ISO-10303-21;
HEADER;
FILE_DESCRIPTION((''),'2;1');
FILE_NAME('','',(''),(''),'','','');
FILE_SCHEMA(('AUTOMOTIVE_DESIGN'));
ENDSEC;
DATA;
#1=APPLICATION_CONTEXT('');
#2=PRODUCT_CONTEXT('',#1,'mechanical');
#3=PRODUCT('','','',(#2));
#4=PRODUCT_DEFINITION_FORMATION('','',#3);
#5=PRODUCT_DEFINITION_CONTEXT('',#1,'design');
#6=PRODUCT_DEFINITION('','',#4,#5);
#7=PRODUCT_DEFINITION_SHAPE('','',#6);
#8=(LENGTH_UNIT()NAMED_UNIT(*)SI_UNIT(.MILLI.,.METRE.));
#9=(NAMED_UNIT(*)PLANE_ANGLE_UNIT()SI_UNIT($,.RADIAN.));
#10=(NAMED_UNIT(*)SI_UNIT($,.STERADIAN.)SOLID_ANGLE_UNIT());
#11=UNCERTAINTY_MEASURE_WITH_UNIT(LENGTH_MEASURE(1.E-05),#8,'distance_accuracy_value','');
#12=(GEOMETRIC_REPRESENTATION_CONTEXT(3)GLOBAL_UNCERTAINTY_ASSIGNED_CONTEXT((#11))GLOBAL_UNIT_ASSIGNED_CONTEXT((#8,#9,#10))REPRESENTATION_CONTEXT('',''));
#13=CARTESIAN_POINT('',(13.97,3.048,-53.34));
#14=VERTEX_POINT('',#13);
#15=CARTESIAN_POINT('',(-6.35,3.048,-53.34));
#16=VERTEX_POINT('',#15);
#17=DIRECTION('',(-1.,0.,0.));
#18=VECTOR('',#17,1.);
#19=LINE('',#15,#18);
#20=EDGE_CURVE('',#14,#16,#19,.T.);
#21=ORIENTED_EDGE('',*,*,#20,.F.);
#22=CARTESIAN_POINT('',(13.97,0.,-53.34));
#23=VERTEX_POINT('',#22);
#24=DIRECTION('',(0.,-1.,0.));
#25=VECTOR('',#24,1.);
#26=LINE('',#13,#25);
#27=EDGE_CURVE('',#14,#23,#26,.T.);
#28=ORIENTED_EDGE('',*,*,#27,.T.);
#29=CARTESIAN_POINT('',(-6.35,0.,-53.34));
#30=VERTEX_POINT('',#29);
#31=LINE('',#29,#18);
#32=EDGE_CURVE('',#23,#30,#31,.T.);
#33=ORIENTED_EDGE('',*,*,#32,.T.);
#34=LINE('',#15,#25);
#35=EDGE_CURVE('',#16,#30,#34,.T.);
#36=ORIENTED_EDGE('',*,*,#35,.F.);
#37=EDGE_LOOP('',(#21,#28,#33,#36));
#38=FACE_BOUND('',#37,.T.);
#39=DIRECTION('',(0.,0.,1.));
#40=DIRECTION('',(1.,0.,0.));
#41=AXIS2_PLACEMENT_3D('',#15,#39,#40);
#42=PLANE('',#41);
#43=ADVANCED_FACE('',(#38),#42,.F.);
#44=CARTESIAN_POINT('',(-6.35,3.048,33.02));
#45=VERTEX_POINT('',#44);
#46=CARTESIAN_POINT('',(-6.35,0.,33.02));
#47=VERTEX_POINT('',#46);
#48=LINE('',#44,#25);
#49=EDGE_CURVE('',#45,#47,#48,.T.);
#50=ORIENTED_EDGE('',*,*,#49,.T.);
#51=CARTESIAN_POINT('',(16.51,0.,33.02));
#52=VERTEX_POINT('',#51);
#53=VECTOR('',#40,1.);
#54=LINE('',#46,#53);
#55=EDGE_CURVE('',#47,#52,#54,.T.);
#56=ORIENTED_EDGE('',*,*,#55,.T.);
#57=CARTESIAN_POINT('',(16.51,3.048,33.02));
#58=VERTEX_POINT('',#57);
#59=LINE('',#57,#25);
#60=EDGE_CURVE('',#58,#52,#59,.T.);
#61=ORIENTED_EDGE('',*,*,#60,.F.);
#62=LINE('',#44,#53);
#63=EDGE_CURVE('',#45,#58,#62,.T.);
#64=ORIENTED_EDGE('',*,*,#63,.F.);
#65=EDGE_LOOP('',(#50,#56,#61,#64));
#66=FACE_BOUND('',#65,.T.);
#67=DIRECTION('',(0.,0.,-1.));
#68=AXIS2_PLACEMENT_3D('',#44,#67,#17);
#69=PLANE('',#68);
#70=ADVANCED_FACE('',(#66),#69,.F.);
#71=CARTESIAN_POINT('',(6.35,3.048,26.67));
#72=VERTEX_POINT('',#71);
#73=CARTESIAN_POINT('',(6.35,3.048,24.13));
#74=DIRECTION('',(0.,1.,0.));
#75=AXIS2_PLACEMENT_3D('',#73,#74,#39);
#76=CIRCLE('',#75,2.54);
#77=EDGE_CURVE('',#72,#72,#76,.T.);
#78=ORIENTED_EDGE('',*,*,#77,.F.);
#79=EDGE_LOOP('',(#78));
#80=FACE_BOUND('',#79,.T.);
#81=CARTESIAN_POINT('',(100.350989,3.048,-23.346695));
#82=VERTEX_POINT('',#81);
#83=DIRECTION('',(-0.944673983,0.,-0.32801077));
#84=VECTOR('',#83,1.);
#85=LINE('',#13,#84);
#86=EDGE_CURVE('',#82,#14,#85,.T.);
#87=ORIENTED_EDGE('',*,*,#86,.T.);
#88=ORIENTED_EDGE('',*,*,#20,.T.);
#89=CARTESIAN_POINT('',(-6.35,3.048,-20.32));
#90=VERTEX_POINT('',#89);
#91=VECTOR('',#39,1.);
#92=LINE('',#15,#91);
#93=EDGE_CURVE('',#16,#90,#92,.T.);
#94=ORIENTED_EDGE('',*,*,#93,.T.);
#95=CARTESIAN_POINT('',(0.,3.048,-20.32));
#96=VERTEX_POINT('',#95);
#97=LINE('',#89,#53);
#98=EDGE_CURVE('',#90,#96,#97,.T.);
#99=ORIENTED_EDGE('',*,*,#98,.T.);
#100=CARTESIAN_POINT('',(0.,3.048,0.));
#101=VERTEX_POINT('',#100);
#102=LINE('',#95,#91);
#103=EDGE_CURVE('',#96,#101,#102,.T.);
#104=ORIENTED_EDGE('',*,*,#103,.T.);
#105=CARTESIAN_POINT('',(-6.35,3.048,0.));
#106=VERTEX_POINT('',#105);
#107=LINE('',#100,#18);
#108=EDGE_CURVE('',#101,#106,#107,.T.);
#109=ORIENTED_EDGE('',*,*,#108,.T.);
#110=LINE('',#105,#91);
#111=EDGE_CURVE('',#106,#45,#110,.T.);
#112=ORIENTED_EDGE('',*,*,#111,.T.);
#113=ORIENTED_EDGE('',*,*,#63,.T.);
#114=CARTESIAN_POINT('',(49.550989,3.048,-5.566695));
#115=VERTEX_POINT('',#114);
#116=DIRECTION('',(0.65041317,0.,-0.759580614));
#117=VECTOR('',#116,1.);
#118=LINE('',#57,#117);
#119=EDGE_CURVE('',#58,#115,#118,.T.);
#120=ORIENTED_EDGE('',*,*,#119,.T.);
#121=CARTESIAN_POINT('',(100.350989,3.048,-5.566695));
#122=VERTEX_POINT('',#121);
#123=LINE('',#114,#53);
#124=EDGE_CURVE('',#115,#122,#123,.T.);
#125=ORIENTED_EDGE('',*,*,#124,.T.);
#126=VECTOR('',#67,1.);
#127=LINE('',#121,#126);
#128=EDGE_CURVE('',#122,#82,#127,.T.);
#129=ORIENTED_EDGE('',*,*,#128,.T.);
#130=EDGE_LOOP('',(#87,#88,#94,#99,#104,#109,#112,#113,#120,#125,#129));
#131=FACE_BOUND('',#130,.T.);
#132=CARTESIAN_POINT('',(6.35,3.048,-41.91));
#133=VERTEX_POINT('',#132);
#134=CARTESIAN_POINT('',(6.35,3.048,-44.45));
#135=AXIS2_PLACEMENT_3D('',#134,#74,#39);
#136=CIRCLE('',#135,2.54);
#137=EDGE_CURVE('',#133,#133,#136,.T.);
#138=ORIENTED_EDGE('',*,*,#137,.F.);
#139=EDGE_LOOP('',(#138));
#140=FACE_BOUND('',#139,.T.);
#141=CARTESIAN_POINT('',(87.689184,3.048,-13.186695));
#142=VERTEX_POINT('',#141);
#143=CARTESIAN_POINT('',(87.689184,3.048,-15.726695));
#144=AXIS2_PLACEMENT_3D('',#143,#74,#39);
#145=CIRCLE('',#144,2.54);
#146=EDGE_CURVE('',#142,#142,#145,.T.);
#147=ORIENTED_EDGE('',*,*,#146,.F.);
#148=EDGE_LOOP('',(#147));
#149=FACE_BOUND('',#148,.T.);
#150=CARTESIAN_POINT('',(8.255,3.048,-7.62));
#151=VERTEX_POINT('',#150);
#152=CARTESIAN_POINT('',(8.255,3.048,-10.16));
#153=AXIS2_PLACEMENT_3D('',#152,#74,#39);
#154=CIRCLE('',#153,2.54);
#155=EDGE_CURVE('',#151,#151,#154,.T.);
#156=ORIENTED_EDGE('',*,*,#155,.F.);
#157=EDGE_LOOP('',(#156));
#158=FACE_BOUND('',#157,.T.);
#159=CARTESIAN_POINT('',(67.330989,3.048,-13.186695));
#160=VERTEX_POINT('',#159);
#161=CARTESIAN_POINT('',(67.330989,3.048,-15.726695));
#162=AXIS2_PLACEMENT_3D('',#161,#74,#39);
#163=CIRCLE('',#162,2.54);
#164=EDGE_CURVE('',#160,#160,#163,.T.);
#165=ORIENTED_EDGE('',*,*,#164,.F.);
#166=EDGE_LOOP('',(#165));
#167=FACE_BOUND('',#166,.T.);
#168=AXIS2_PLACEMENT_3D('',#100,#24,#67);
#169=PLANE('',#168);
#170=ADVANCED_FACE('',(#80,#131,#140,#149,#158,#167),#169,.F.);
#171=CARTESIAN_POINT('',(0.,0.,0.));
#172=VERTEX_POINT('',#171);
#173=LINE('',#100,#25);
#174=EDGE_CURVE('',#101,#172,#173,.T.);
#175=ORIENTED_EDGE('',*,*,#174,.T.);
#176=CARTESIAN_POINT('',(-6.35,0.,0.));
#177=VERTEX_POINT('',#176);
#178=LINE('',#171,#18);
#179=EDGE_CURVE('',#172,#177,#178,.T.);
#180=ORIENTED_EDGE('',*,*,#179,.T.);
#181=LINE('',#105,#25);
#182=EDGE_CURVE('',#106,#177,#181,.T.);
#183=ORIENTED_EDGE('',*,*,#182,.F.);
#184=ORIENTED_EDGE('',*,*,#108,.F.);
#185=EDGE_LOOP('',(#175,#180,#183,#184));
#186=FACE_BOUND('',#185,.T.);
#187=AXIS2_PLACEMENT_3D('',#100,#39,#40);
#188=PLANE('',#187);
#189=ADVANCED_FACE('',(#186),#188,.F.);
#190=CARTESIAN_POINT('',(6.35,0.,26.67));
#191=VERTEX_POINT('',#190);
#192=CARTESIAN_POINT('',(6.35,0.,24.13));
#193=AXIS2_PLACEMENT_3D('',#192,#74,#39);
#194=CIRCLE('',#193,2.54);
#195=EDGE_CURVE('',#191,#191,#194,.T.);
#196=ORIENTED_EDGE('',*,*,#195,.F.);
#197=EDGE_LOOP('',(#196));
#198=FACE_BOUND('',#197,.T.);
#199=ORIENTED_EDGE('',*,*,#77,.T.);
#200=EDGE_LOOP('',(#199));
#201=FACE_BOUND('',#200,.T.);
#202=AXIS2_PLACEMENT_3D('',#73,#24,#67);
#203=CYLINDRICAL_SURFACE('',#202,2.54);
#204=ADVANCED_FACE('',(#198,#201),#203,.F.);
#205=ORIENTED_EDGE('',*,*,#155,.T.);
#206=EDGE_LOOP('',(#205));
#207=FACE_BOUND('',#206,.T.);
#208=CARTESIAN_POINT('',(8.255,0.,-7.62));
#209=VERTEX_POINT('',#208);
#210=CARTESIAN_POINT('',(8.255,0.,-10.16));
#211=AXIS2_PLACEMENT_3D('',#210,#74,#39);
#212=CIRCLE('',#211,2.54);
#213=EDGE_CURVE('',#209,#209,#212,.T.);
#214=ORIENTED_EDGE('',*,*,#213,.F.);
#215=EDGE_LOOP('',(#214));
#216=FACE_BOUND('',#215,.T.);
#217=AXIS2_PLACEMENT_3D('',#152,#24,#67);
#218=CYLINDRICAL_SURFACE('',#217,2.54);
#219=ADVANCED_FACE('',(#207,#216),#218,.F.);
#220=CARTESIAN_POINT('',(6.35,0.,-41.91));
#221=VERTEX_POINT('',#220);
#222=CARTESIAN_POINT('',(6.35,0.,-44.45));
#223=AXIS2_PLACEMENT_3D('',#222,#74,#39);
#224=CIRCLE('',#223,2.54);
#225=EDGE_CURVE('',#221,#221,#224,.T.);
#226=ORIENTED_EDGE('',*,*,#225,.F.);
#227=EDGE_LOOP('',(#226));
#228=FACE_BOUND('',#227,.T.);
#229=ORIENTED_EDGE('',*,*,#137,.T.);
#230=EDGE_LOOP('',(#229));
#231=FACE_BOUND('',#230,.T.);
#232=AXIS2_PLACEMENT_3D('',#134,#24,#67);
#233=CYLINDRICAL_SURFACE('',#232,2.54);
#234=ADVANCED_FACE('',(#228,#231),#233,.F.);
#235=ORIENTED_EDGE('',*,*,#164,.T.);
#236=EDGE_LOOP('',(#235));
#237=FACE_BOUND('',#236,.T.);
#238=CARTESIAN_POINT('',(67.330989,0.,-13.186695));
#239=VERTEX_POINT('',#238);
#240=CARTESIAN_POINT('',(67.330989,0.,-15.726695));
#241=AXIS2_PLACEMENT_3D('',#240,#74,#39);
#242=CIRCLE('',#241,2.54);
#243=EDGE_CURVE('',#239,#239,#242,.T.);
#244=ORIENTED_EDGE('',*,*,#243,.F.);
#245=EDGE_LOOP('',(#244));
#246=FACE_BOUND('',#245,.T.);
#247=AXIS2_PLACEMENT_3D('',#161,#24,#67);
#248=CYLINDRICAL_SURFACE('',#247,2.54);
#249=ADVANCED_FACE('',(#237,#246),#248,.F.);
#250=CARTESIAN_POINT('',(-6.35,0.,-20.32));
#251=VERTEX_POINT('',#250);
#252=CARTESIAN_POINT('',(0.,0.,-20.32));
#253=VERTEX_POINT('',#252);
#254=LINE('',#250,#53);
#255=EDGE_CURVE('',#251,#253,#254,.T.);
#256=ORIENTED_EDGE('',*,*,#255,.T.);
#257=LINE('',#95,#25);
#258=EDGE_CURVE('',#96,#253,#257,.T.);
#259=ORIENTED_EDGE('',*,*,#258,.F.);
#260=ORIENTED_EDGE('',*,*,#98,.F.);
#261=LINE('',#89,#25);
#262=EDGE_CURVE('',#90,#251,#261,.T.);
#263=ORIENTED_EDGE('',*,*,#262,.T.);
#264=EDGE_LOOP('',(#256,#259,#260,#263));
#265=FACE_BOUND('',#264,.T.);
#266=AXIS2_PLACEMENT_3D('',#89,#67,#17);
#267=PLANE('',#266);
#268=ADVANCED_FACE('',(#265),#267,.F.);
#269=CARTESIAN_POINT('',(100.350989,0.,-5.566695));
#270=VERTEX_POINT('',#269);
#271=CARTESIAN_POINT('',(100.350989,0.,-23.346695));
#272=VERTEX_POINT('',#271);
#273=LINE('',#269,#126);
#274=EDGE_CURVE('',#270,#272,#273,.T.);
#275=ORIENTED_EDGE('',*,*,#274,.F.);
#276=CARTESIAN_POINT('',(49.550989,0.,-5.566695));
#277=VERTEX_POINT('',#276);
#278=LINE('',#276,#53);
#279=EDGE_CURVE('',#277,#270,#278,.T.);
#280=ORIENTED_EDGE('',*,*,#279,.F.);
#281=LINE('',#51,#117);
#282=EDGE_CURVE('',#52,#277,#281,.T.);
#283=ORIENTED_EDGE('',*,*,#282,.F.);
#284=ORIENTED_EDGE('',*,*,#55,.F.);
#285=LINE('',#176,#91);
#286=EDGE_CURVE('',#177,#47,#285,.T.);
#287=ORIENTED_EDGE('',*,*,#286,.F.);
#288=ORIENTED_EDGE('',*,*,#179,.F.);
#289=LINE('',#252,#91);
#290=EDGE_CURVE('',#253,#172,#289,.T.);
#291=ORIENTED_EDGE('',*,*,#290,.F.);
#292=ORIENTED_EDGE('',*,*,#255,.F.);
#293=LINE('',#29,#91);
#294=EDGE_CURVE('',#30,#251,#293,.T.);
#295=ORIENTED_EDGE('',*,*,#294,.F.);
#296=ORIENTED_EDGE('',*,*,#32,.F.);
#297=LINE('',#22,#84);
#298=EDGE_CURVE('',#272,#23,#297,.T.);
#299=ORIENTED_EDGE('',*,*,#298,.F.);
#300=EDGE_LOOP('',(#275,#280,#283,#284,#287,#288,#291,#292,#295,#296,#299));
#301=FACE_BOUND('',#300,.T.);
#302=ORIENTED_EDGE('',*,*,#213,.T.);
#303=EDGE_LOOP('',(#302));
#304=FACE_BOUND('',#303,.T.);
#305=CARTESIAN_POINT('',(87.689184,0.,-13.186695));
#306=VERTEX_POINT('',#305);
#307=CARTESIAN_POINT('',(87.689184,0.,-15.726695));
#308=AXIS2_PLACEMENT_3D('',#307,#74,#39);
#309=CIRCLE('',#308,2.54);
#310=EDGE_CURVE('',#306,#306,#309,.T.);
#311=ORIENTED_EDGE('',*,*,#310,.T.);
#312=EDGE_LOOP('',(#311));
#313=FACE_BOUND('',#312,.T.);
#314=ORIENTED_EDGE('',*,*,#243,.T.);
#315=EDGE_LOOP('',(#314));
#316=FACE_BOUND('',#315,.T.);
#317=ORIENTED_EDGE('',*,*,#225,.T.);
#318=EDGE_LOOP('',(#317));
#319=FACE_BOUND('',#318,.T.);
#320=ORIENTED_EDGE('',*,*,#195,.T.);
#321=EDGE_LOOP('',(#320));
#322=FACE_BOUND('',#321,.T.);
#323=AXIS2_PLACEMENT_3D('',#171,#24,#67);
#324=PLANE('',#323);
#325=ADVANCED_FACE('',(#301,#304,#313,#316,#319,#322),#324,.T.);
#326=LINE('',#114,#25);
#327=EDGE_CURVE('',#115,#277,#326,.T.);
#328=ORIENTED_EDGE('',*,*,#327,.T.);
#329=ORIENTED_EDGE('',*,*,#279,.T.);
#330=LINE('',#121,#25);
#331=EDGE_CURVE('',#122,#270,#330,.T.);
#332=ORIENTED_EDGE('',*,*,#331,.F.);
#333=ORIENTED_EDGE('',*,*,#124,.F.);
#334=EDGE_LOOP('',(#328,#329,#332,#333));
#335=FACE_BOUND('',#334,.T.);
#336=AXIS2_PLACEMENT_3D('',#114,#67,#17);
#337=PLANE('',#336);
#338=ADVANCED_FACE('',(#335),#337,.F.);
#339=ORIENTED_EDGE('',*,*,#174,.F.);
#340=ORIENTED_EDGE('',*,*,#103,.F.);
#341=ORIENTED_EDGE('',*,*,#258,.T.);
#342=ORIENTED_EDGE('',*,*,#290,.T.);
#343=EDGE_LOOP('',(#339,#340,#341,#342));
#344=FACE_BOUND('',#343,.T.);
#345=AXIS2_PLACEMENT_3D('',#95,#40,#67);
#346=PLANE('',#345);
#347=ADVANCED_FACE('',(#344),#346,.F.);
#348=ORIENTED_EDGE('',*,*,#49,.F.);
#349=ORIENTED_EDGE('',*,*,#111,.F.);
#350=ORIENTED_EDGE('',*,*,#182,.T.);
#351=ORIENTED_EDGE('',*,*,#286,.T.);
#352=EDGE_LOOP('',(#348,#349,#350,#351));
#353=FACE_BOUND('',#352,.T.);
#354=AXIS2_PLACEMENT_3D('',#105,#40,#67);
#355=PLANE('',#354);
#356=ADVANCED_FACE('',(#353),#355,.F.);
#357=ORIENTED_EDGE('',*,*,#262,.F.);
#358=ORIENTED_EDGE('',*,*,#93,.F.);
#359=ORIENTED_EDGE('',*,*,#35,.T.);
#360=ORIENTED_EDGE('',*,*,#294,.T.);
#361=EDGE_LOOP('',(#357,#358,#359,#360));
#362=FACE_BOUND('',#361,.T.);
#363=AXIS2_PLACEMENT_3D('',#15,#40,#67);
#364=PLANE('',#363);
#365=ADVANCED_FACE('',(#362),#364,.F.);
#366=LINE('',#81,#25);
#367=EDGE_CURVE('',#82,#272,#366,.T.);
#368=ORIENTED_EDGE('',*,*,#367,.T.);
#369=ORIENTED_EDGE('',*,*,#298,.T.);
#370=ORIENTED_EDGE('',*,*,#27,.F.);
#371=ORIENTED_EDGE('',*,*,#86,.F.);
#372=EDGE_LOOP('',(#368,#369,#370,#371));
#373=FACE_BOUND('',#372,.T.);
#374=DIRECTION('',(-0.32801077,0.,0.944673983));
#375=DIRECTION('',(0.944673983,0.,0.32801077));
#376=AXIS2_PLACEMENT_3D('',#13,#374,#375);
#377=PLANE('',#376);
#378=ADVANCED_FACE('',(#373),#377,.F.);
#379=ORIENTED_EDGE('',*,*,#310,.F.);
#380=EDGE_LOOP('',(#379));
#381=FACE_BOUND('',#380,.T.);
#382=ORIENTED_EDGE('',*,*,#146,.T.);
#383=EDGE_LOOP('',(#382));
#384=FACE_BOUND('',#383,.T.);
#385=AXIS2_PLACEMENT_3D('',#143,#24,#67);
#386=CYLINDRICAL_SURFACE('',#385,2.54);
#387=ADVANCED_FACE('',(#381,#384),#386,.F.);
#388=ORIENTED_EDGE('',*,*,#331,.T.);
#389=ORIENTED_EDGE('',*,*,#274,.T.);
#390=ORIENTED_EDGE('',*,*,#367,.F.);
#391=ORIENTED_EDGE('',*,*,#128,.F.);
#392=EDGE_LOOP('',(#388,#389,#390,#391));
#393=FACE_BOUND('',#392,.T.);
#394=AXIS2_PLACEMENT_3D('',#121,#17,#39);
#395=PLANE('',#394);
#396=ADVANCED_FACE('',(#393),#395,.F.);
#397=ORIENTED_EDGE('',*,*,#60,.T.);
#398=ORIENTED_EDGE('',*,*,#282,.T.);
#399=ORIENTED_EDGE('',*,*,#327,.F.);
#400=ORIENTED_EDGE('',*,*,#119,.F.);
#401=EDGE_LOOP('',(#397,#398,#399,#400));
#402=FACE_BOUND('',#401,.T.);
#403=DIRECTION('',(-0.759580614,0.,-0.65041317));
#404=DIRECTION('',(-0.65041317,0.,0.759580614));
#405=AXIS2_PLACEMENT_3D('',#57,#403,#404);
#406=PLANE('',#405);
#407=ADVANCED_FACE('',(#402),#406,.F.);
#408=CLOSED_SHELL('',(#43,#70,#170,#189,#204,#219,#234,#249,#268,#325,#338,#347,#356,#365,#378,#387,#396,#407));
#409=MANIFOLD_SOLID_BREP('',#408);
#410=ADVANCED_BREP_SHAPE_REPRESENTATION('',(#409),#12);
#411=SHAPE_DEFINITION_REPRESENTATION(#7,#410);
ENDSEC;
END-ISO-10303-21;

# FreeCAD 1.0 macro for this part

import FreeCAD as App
import Part
import Sketcher
from FreeCAD import Vector
Q = App.Units.Quantity

doc = App.newDocument("Part")
body = doc.addObject("PartDesign::Body", "Body")

sketch1 = body.newObject("Sketcher::SketchObject", "Sketch")
sketch1.AttachmentSupport = (doc.getObject("XZ_Plane"), [""])
sketch1.MapMode = "FlatFace"
sketch1.addGeometry([
    Part.LineSegment(Vector(0, -20.32, 0), Vector(0, 0, 0)),
    Part.LineSegment(Vector(0, 0, 0), Vector(-6.35, 0, 0)),
    Part.LineSegment(Vector(-6.35, 0, 0), Vector(-6.35, 33.02, 0)),
    Part.LineSegment(Vector(-6.35, 33.02, 0), Vector(16.51, 33.02, 0)),
    Part.LineSegment(Vector(16.51, 33.02, 0), Vector(49.550989, -5.566695, 0)),
    Part.LineSegment(Vector(49.550989, -5.566695, 0), Vector(100.350989, -5.566695, 0)),
    Part.LineSegment(Vector(100.350989, -5.566695, 0), Vector(100.350989, -23.346695, 0)),
    Part.LineSegment(Vector(100.350989, -23.346695, 0), Vector(13.97, -53.34, 0)),
    Part.LineSegment(Vector(13.97, -53.34, 0), Vector(-6.35, -53.34, 0)),
    Part.LineSegment(Vector(-6.35, -53.34, 0), Vector(-6.35, -20.32, 0)),
    Part.LineSegment(Vector(-6.35, -20.32, 0), Vector(0, -20.32, 0)),
    Part.Circle(Vector(6.35, 24.13, 0), Vector(0, 0, 1), 2.54),
    Part.Circle(Vector(8.255, -10.16, 0), Vector(0, 0, 1), 2.54),
    Part.Circle(Vector(6.35, -44.45, 0), Vector(0, 0, 1), 2.54),
    Part.Circle(Vector(67.330989, -15.726695, 0), Vector(0, 0, 1), 2.54),
    Part.Circle(Vector(87.689184, -15.726695, 0), Vector(0, 0, 1), 2.54),
], False)
sketch1.addConstraint([
    Sketcher.Constraint("Coincident", 0, 2, 1, 1),
    Sketcher.Constraint("Coincident", 1, 2, 2, 1),
    Sketcher.Constraint("Coincident", 2, 2, 3, 1),
    Sketcher.Constraint("Coincident", 3, 2, 4, 1),
    Sketcher.Constraint("Coincident", 4, 2, 5, 1),
    Sketcher.Constraint("Coincident", 5, 2, 6, 1),
    Sketcher.Constraint("Coincident", 6, 2, 7, 1),
    Sketcher.Constraint("Coincident", 7, 2, 8, 1),
    Sketcher.Constraint("Coincident", 8, 2, 9, 1),
    Sketcher.Constraint("Coincident", 9, 2, 10, 1),
    Sketcher.Constraint("Coincident", 10, 2, 0, 1),
    Sketcher.Constraint("Vertical", 0),
    Sketcher.Constraint("Horizontal", 1),
    Sketcher.Constraint("Vertical", 2),
    Sketcher.Constraint("Horizontal", 3),
    Sketcher.Constraint("Horizontal", 5),
    Sketcher.Constraint("Vertical", 6),
    Sketcher.Constraint("Horizontal", 8),
    Sketcher.Constraint("Vertical", 9),
    Sketcher.Constraint("Horizontal", 10),
    Sketcher.Constraint("Coincident", 0, 2, -1, 1),
    Sketcher.Constraint("Equal", 11, 12),
    Sketcher.Constraint("Equal", 12, 13),
    Sketcher.Constraint("Equal", 13, 14),
    Sketcher.Constraint("Equal", 14, 15),
    Sketcher.Constraint("Horizontal", 14, 3, 15, 3),
    Sketcher.Constraint("Vertical", 11, 3, 13, 3),
    Sketcher.Constraint("Vertical", 2, 2, 8, 2),
    Sketcher.Constraint("Equal", 8, 0),
    Sketcher.Constraint("Equal", 2, 9),
    Sketcher.Constraint("Diameter", 11, Q("0.2 in")),
    Sketcher.Constraint("DistanceX", 5, 1, 5, 2, Q("2 in")),
    Sketcher.Constraint("Distance", 4, Q("2 in")),
    Sketcher.Constraint("DistanceX", 3, 1, 3, 2, Q("0.9 in")),
    Sketcher.Constraint("DistanceX", 8, 2, 8, 1, Q("0.8 in")),
    Sketcher.Constraint("DistanceY", 2, 1, 2, 2, Q("1.3 in")),
    Sketcher.Constraint("DistanceY", 6, 2, 6, 1, Q("0.7 in")),
    Sketcher.Constraint("Distance", 7, Q("3.6 in")),
    Sketcher.Constraint("DistanceX", 1, 2, 1, 1, Q("0.25 in")),
    Sketcher.Constraint("DistanceY", 12, 3, -1, 1, Q("0.4 in")),
    Sketcher.Constraint("DistanceY", 13, 3, 11, 3, Q("2.7 in")),
    Sketcher.Constraint("DistanceX", 1, 2, 11, 3, Q("0.5 in")),
    Sketcher.Constraint("DistanceX", 4, 2, 14, 3, Q("0.7 in")),
    Sketcher.Constraint("DistanceY", 14, 3, 4, 2, Q("0.4 in")),
    Sketcher.Constraint("DistanceY", -1, 1, 11, 3, Q("0.95 in")),
    Sketcher.Constraint("DistanceX", -1, 1, 12, 3, Q("0.325 in")),
    Sketcher.Constraint("DistanceX", -1, 1, 15, 3, 87.689184),
])
pad1 = body.newObject("PartDesign::Pad", "Pad")
pad1.Profile = sketch1
pad1.Length = Q("0.12 in")
pad1.Reversed = True

doc.recompute()
